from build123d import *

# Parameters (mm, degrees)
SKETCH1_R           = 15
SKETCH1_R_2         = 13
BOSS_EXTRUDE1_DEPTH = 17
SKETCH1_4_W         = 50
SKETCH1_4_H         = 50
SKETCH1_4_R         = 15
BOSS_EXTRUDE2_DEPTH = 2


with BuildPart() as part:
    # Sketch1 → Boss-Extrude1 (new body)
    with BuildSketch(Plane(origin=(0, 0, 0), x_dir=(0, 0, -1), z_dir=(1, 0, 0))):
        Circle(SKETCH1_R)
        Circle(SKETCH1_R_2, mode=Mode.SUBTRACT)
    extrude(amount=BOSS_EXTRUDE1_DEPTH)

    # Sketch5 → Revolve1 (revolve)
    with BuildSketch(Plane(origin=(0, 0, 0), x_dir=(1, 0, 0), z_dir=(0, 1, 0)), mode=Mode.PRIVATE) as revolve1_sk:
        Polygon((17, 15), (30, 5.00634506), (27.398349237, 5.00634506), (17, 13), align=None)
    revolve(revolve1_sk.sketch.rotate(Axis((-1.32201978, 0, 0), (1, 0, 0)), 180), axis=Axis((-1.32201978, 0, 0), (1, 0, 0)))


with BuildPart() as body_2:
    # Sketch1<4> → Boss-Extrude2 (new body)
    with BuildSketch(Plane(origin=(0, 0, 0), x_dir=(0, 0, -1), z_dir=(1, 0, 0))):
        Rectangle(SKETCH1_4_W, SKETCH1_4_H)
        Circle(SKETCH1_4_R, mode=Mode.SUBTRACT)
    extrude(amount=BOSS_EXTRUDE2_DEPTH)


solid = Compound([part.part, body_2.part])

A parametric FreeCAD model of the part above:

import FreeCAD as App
import Part
import Sketcher

V = App.Vector


def add_polygon(sketch, points):
    """Adds a closed chain of lines whose ends are joined by coincident constraints."""
    first, n = sketch.GeometryCount, len(points)
    for a, b in zip(points, points[1:] + points[:1]):
        sketch.addGeometry(Part.LineSegment(App.Vector(*a, 0), App.Vector(*b, 0)), False)
    for i in range(n):
        sketch.addConstraint(Sketcher.Constraint("Coincident", first + i, 2, first + (i + 1) % n, 1))

doc = App.newDocument("Part")
body = doc.addObject("PartDesign::Body", "Body")

# Sketch on YZ plane
sketch1 = doc.addObject("Sketcher::SketchObject", "Sketch")
body.addObject(sketch1)
sketch1.AttachmentSupport = (doc.YZ_Plane, [""])
sketch1.MapMode = "FlatFace"
sketch1.addGeometry(Part.Circle(V(0, 0, 0), V(0, 0, 1), 15), False)
sketch1.addGeometry(Part.Circle(V(0, 0, 0), V(0, 0, 1), 13), False)
sketch1.addConstraint(Sketcher.Constraint("Coincident", 0, 3, -1, 1))
sketch1.addConstraint(Sketcher.Constraint("Coincident", 1, 3, -1, 1))
sketch1.addConstraint(Sketcher.Constraint("Diameter", 0, 30.0))
sketch1.addConstraint(Sketcher.Constraint("Diameter", 1, 26.0))
pad1 = doc.addObject("PartDesign::Pad", "Pad")
body.addObject(pad1)
pad1.Profile = sketch1
pad1.Length = 17

# Sketch on XZ plane
sketch2 = doc.addObject("Sketcher::SketchObject", "Sketch001")
body.addObject(sketch2)
sketch2.AttachmentSupport = (doc.XZ_Plane, [""])
sketch2.MapMode = "FlatFace"
add_polygon(sketch2, [(30, -5), (17, -15), (17, -13), (27.4, -5)])  # lines 0-3
sketch2.addConstraint(Sketcher.Constraint("Vertical", 1))
sketch2.addConstraint(Sketcher.Constraint("Horizontal", 3))
sketch2.addConstraint(Sketcher.Constraint("Parallel", 0, 2))
sketch2.addConstraint(Sketcher.Constraint("DistanceY", 1, 1, 1, 2, 2.0))
sketch2.addConstraint(Sketcher.Constraint("DistanceX", -1, 1, 0, 2, 17.0))
sketch2.addConstraint(Sketcher.Constraint("DistanceY", 0, 2, -1, 1, 15.0))
sketch2.addConstraint(Sketcher.Constraint("DistanceX", -1, 1, 3, 2, 30.0))
sketch2.addConstraint(Sketcher.Constraint("Distance", 2, 13.115799))
revolution = doc.addObject("PartDesign::Revolution", "Revolution")
body.addObject(revolution)
revolution.Profile = sketch2
revolution.ReferenceAxis = (sketch2, ["H_Axis"])
revolution.Angle = 360
body2 = doc.addObject("PartDesign::Body", "Body001")

# Sketch on YZ plane
sketch3 = doc.addObject("Sketcher::SketchObject", "Sketch002")
body2.addObject(sketch3)
sketch3.AttachmentSupport = (doc.getObject("YZ_Plane001"), [""])
sketch3.MapMode = "FlatFace"
add_polygon(sketch3, [(25, 25), (-25, 25), (-25, -25), (25, -25)])  # lines 0-3
sketch3.addGeometry(Part.Circle(V(0, 0, 0), V(0, 0, 1), 15), False)  # 4
sketch3.addConstraint(Sketcher.Constraint("Horizontal", 0))
sketch3.addConstraint(Sketcher.Constraint("Vertical", 1))
sketch3.addConstraint(Sketcher.Constraint("Horizontal", 2))
sketch3.addConstraint(Sketcher.Constraint("Vertical", 3))
sketch3.addConstraint(Sketcher.Constraint("Coincident", 4, 3, -1, 1))
sketch3.addConstraint(Sketcher.Constraint("Symmetric", 0, 2, 2, 2, -1, 1))
sketch3.addConstraint(Sketcher.Constraint("Equal", 2, 1))
sketch3.addConstraint(Sketcher.Constraint("Diameter", 4, 30.0))
sketch3.addConstraint(Sketcher.Constraint("DistanceX", 0, 2, 0, 1, 50.0))
pad2 = doc.addObject("PartDesign::Pad", "Pad001")
body2.addObject(pad2)
pad2.Profile = sketch3
pad2.Length = 2

doc.recompute()
